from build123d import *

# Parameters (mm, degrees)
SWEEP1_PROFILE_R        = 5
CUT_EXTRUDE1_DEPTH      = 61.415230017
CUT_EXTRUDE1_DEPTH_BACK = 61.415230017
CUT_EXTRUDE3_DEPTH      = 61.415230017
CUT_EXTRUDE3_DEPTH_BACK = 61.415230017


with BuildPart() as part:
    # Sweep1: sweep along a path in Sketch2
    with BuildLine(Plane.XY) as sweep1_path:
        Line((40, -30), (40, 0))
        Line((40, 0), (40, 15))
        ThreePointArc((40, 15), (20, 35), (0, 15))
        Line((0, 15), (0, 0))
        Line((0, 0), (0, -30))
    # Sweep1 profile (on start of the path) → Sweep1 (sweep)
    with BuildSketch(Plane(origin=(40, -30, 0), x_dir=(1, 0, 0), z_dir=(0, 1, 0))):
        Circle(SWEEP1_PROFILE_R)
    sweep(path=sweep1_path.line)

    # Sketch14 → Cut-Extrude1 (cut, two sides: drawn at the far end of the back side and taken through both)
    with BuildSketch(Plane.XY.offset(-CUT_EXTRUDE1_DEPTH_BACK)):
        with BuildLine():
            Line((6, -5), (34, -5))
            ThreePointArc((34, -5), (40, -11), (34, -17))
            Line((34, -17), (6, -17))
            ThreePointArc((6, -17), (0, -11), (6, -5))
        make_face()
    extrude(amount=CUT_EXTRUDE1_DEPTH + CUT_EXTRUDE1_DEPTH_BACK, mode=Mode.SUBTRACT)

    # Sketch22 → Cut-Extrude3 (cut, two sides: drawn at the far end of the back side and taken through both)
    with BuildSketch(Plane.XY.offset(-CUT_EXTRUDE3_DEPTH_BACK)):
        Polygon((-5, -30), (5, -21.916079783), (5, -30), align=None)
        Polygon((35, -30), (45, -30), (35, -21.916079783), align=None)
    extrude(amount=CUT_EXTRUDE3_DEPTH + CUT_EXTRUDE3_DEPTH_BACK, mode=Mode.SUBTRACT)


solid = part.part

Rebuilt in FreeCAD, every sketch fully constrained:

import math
import FreeCAD as App
import Part
import Sketcher

V = App.Vector
Q = App.Units.Quantity


def add_polygon(sketch, points):
    """Adds a closed chain of lines whose ends are joined by coincident constraints."""
    first, n = sketch.GeometryCount, len(points)
    for a, b in zip(points, points[1:] + points[:1]):
        sketch.addGeometry(Part.LineSegment(App.Vector(*a, 0), App.Vector(*b, 0)), False)
    for i in range(n):
        sketch.addConstraint(Sketcher.Constraint("Coincident", first + i, 2, first + (i + 1) % n, 1))

doc = App.newDocument("Part")
body = doc.addObject("PartDesign::Body", "Body")

sketch1 = doc.addObject("Sketcher::SketchObject", "Sketch")
body.addObject(sketch1)
sketch1.AttachmentSupport = (doc.XZ_Plane, [""])
sketch1.MapMode = "FlatFace"
sketch1.AttachmentOffset = App.Placement(V(0, 0, 30), App.Rotation())
sketch1.addGeometry(Part.Circle(V(40, 0, 0), V(0, 0, 1), 5), False)
sketch1.addConstraint([
    Sketcher.Constraint("PointOnObject", 0, 3, -1),
    Sketcher.Constraint("Diameter", 0, Q("10 mm")),
    Sketcher.Constraint("DistanceX", -1, 1, 0, 3, Q("40 mm")),
])

sketch2 = doc.addObject("Sketcher::SketchObject", "Sketch001")
body.addObject(sketch2)
sketch2.AttachmentSupport = (doc.XY_Plane, [""])
sketch2.MapMode = "FlatFace"
sketch2.addGeometry([
    Part.LineSegment(V(40, -30, 0), V(40, 15, 0)),
    Part.ArcOfCircle(Part.Circle(V(20, 15, 0), V(0, 0, 1), 20), math.radians(0), math.radians(180)),
    Part.LineSegment(V(0, 15, 0), V(0, -30, 0)),
], False)
sketch2.addConstraint([
    Sketcher.Constraint("Tangent", 0, 2, 1, 1),
    Sketcher.Constraint("Tangent", 1, 2, 2, 1),
    Sketcher.Constraint("Vertical", 0),
    Sketcher.Constraint("Vertical", 2),
    Sketcher.Constraint("PointOnObject", 1, 2, -2),
    Sketcher.Constraint("Horizontal", 0, 1, 2, 2),
    Sketcher.Constraint("Radius", 1, Q("20 mm")),
    Sketcher.Constraint("DistanceY", 0, 1, 0, 2, Q("45 mm")),
    Sketcher.Constraint("DistanceY", -1, 1, 1, 3, Q("15 mm")),
])
doc.recompute()

additivepipe = doc.addObject("PartDesign::AdditivePipe", "AdditivePipe")
body.addObject(additivepipe)
additivepipe.Profile = sketch1
additivepipe.Spine = (sketch2, ["Edge1", "Edge2", "Edge3"])

sketch3 = doc.addObject("Sketcher::SketchObject", "Sketch002")
body.addObject(sketch3)
sketch3.AttachmentSupport = (doc.XY_Plane, [""])
sketch3.MapMode = "FlatFace"
sketch3.addGeometry([
    Part.LineSegment(V(34, -5, 0), V(6, -5, 0)),
    Part.ArcOfCircle(Part.Circle(V(6, -11, 0), V(0, 0, 1), 6), math.radians(90), math.radians(270)),
    Part.LineSegment(V(6, -17, 0), V(34, -17, 0)),
    Part.ArcOfCircle(Part.Circle(V(34, -11, 0), V(0, 0, 1), 6), math.radians(-90), math.radians(90)),
], False)
sketch3.addConstraint([
    Sketcher.Constraint("Tangent", 0, 2, 1, 1),
    Sketcher.Constraint("Tangent", 1, 2, 2, 1),
    Sketcher.Constraint("Tangent", 2, 2, 3, 1),
    Sketcher.Constraint("Tangent", 3, 2, 0, 1),
    Sketcher.Constraint("Horizontal", 0),
    Sketcher.Constraint("Horizontal", 2),
    Sketcher.Constraint("Radius", 1, Q("6 mm")),
    Sketcher.Constraint("DistanceX", 0, 2, 0, 1, Q("28 mm")),
    Sketcher.Constraint("DistanceX", -1, 1, 1, 3, Q("6 mm")),
    Sketcher.Constraint("DistanceY", 1, 3, -1, 1, Q("11 mm")),
])
pocket1 = doc.addObject("PartDesign::Pocket", "Pocket")
body.addObject(pocket1)
pocket1.Profile = sketch3
pocket1.Type = "ThroughAll"
pocket1.Midplane = True

sketch4 = doc.addObject("Sketcher::SketchObject", "Sketch003")
body.addObject(sketch4)
sketch4.AttachmentSupport = (doc.XY_Plane, [""])
sketch4.MapMode = "FlatFace"
add_polygon(sketch4, [(5, -22), (-5, -30), (5, -30)])
add_polygon(sketch4, [(35, -30), (45, -30), (35, -22)])
sketch4.addConstraint([
    Sketcher.Constraint("Horizontal", 1),
    Sketcher.Constraint("Vertical", 2),
    Sketcher.Constraint("Horizontal", 3),
    Sketcher.Constraint("Vertical", 5),
    Sketcher.Constraint("Horizontal", 1, 2, 3, 2),
    Sketcher.Constraint("Horizontal", 2, 2, 4, 2),
    Sketcher.Constraint("Equal", 1, 3),
    Sketcher.Constraint("DistanceX", 1, 1, 1, 2, Q("10 mm")),
    Sketcher.Constraint("DistanceX", 0, 2, -1, 1, Q("5 mm")),
    Sketcher.Constraint("DistanceY", 0, 2, -1, 1, Q("30 mm")),
    Sketcher.Constraint("DistanceX", -1, 1, 3, 2, Q("45 mm")),
    Sketcher.Constraint("DistanceY", 2, 1, 2, 2, Q("8.08392 mm")),
])
pocket2 = doc.addObject("PartDesign::Pocket", "Pocket001")
body.addObject(pocket2)
pocket2.Profile = sketch4
pocket2.Type = "ThroughAll"
pocket2.Midplane = True

doc.recompute()
